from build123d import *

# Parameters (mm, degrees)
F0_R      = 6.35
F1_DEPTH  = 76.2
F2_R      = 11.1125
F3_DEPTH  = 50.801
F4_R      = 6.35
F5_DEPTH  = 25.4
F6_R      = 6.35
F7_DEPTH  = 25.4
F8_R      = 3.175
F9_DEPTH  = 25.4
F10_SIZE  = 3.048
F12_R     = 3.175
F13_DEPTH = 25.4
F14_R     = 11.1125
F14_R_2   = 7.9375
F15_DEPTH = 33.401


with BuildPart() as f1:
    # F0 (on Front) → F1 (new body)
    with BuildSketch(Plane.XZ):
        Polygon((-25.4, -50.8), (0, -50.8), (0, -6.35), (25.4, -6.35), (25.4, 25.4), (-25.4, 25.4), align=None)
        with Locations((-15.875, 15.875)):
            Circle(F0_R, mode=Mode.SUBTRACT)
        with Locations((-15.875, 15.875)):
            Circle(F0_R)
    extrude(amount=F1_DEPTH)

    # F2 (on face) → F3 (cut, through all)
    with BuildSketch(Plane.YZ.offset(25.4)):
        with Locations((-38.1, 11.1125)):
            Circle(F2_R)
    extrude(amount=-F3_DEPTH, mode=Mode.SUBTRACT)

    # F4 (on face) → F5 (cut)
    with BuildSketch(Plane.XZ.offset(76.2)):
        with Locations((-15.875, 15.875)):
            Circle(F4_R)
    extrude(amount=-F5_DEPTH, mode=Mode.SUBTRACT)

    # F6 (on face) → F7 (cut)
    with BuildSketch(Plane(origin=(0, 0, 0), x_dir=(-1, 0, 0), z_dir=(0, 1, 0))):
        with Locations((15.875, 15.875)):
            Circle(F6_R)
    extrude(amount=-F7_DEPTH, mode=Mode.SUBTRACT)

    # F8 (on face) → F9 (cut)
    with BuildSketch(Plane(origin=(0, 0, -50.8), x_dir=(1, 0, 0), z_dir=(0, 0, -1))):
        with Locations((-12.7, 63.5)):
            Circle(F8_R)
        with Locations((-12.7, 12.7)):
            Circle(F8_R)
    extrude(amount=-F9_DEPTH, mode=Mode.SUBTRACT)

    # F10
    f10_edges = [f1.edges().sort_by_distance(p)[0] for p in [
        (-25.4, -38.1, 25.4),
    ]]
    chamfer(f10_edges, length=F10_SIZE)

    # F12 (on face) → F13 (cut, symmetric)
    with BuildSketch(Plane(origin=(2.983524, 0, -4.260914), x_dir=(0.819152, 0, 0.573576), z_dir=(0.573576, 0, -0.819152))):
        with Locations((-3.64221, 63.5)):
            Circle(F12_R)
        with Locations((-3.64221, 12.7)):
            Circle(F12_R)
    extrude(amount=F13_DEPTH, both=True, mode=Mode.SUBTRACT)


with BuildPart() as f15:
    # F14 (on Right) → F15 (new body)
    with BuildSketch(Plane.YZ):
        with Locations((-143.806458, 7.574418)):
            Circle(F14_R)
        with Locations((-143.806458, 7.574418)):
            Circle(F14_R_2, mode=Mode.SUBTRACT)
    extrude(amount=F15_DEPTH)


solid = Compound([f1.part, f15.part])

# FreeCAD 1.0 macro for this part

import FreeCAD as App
import Part
import Sketcher
from FreeCAD import Vector
Q = App.Units.Quantity


def edges_at(feature, points):
    """Names of the edges that pass closest to the given points."""
    edges = feature.Shape.Edges
    near = lambda p: min(range(len(edges)), key=lambda i: edges[i].distToShape(Part.Vertex(*p))[0])
    return sorted({f"Edge{near(p) + 1}" for p in points})

doc = App.newDocument("Part")
body = doc.addObject("PartDesign::Body", "Body")

# Sketch on XZ plane
sketch1 = body.newObject("Sketcher::SketchObject", "Sketch")
sketch1.AttachmentSupport = (doc.getObject("XZ_Plane"), [""])
sketch1.MapMode = "FlatFace"
sketch1.addGeometry(Part.LineSegment(Vector(-25, -51, 0), Vector(0, -51, 0)), False)
sketch1.addGeometry(Part.LineSegment(Vector(0, -51, 0), Vector(0, -6, 0)), False)
sketch1.addGeometry(Part.LineSegment(Vector(0, -6, 0), Vector(25, -6, 0)), False)
sketch1.addGeometry(Part.LineSegment(Vector(25, -6, 0), Vector(25, 25, 0)), False)
sketch1.addGeometry(Part.LineSegment(Vector(25, 25, 0), Vector(-25, 25, 0)), False)
sketch1.addGeometry(Part.LineSegment(Vector(-25, 25, 0), Vector(-25, -51, 0)), False)
sketch1.addConstraint(Sketcher.Constraint("Coincident", 0, 2, 1, 1))
sketch1.addConstraint(Sketcher.Constraint("Coincident", 1, 2, 2, 1))
sketch1.addConstraint(Sketcher.Constraint("Coincident", 2, 2, 3, 1))
sketch1.addConstraint(Sketcher.Constraint("Coincident", 3, 2, 4, 1))
sketch1.addConstraint(Sketcher.Constraint("Coincident", 4, 2, 5, 1))
sketch1.addConstraint(Sketcher.Constraint("Coincident", 5, 2, 0, 1))
sketch1.addConstraint(Sketcher.Constraint("Horizontal", 0))
sketch1.addConstraint(Sketcher.Constraint("Vertical", 1))
sketch1.addConstraint(Sketcher.Constraint("Horizontal", 2))
sketch1.addConstraint(Sketcher.Constraint("Vertical", 3))
sketch1.addConstraint(Sketcher.Constraint("Horizontal", 4))
sketch1.addConstraint(Sketcher.Constraint("Vertical", 5))
sketch1.addConstraint(Sketcher.Constraint("PointOnObject", 0, 2, -2))
sketch1.addConstraint(Sketcher.Constraint("Equal", 0, 2))
sketch1.addConstraint(Sketcher.Constraint("DistanceX", 0, 1, 0, 2, Q("1 in")))
sketch1.addConstraint(Sketcher.Constraint("DistanceY", 5, 2, 5, 1, Q("3 in")))
sketch1.addConstraint(Sketcher.Constraint("DistanceY", 0, 2, -1, 1, Q("2 in")))
sketch1.addConstraint(Sketcher.Constraint("DistanceY", 1, 1, 1, 2, Q("1.75 in")))
pad1 = body.newObject("PartDesign::Pad", "Pad")
pad1.Profile = sketch1
pad1.Length = Q("3 in")

# Sketch on YZ plane
sketch2 = body.newObject("Sketcher::SketchObject", "Sketch001")
sketch2.AttachmentSupport = (doc.getObject("YZ_Plane"), [""])
sketch2.MapMode = "FlatFace"
sketch2.AttachmentOffset = App.Placement(Vector(0, 0, 1 * 25.4), App.Rotation())
sketch2.addGeometry(Part.Circle(Vector(-38, 11, 0), Vector(0, 0, 1), 11), False)
sketch2.addConstraint(Sketcher.Constraint("Diameter", 0, Q("0.875 in")))
sketch2.addConstraint(Sketcher.Constraint("DistanceX", 0, 3, -1, 1, Q("1.5 in")))
sketch2.addConstraint(Sketcher.Constraint("DistanceY", -1, 1, 0, 3, Q("0.4375 in")))
pocket1 = body.newObject("PartDesign::Pocket", "Pocket")
pocket1.Profile = sketch2
pocket1.Type = "ThroughAll"

# Sketch on XZ plane
sketch3 = body.newObject("Sketcher::SketchObject", "Sketch002")
sketch3.AttachmentSupport = (doc.getObject("XZ_Plane"), [""])
sketch3.MapMode = "FlatFace"
sketch3.AttachmentOffset = App.Placement(Vector(0, 0, 3 * 25.4), App.Rotation())
sketch3.addGeometry(Part.Circle(Vector(-16, 16, 0), Vector(0, 0, 1), 6), False)
sketch3.addConstraint(Sketcher.Constraint("Diameter", 0, Q("0.5 in")))
sketch3.addConstraint(Sketcher.Constraint("DistanceX", 0, 3, -1, 1, Q("0.625 in")))
sketch3.addConstraint(Sketcher.Constraint("DistanceY", -1, 1, 0, 3, Q("0.625 in")))
pocket2 = body.newObject("PartDesign::Pocket", "Pocket001")
pocket2.Profile = sketch3
pocket2.Length = Q("1 in")

# Sketch on XZ plane
sketch4 = body.newObject("Sketcher::SketchObject", "Sketch003")
sketch4.AttachmentSupport = (doc.getObject("XZ_Plane"), [""])
sketch4.MapMode = "FlatFace"
sketch4.addGeometry(Part.Circle(Vector(-16, 16, 0), Vector(0, 0, 1), 6), False)
sketch4.addConstraint(Sketcher.Constraint("Diameter", 0, Q("0.5 in")))
sketch4.addConstraint(Sketcher.Constraint("DistanceX", 0, 3, -1, 1, Q("0.625 in")))
sketch4.addConstraint(Sketcher.Constraint("DistanceY", -1, 1, 0, 3, Q("0.625 in")))
pocket3 = body.newObject("PartDesign::Pocket", "Pocket002")
pocket3.Profile = sketch4
pocket3.Length = Q("1 in")
pocket3.Reversed = True

# Sketch on XY plane
sketch5 = body.newObject("Sketcher::SketchObject", "Sketch004")
sketch5.AttachmentSupport = (doc.getObject("XY_Plane"), [""])
sketch5.MapMode = "FlatFace"
sketch5.AttachmentOffset = App.Placement(Vector(0, 0, -2 * 25.4), App.Rotation())
sketch5.addGeometry(Part.Circle(Vector(-12.7, -63.5, 0), Vector(0, 0, 1), 3.2), False)
sketch5.addGeometry(Part.Circle(Vector(-12.7, -12.7, 0), Vector(0, 0, 1), 3.2), False)
sketch5.addConstraint(Sketcher.Constraint("Equal", 0, 1))
sketch5.addConstraint(Sketcher.Constraint("Vertical", 0, 3, 1, 3))
sketch5.addConstraint(Sketcher.Constraint("Diameter", 0, Q("0.25 in")))
sketch5.addConstraint(Sketcher.Constraint("DistanceY", 0, 3, 1, 3, Q("2 in")))
sketch5.addConstraint(Sketcher.Constraint("DistanceX", 0, 3, -1, 1, Q("0.5 in")))
sketch5.addConstraint(Sketcher.Constraint("DistanceY", 0, 3, -1, 1, Q("2.5 in")))
pocket4 = body.newObject("PartDesign::Pocket", "Pocket003")
pocket4.Profile = sketch5
pocket4.Length = Q("1 in")
pocket4.Reversed = True
doc.recompute()

chamfer = body.newObject("PartDesign::Chamfer", "Chamfer")
chamfer.Base = (pocket4, edges_at(pocket4, [(-25.4, -38.1, 25.4)]))
chamfer.Size = Q("0.12 in")

# Sketch on an angled plane
sketch6 = body.newObject("Sketcher::SketchObject", "Sketch005")
sketch6.Placement = App.Placement(Vector(2.983524, 0, -4.260914), App.Rotation(Vector(0.819152235, 0, 0.573576164), Vector(0, -1, 0), Vector(0.573576164, 0, -0.819152235), "ZXY"))
sketch6.addGeometry(Part.Circle(Vector(-3.6, 63.5, 0), Vector(0, 0, 1), 3.2), False)
sketch6.addGeometry(Part.Circle(Vector(-3.6, 12.7, 0), Vector(0, 0, 1), 3.2), False)
sketch6.addConstraint(Sketcher.Constraint("Equal", 0, 1))
sketch6.addConstraint(Sketcher.Constraint("Vertical", 0, 3, 1, 3))
sketch6.addConstraint(Sketcher.Constraint("Diameter", 0, Q("0.25 in")))
sketch6.addConstraint(Sketcher.Constraint("DistanceY", 1, 3, 0, 3, Q("2 in")))
sketch6.addConstraint(Sketcher.Constraint("DistanceY", -1, 1, 0, 3, Q("2.5 in")))
sketch6.addConstraint(Sketcher.Constraint("DistanceX", 0, 3, -1, 1, Q("3.64221 mm")))
pocket5 = body.newObject("PartDesign::Pocket", "Pocket004")
pocket5.Profile = sketch6
pocket5.Length = Q("2 in")
pocket5.Midplane = True
body2 = doc.addObject("PartDesign::Body", "Body001")

# Sketch on YZ plane
sketch7 = body2.newObject("Sketcher::SketchObject", "Sketch006")
sketch7.AttachmentSupport = (doc.getObject("YZ_Plane001"), [""])
sketch7.MapMode = "FlatFace"
sketch7.addGeometry(Part.Circle(Vector(-144, 8, 0), Vector(0, 0, 1), 11), False)
sketch7.addGeometry(Part.Circle(Vector(-144, 8, 0), Vector(0, 0, 1), 8), False)
sketch7.addConstraint(Sketcher.Constraint("Coincident", 1, 3, 0, 3))
sketch7.addConstraint(Sketcher.Constraint("Diameter", 0, Q("0.875 in")))
sketch7.addConstraint(Sketcher.Constraint("Diameter", 1, Q("0.625 in")))
sketch7.addConstraint(Sketcher.Constraint("DistanceX", 0, 3, -1, 1, Q("143.806458 mm")))
sketch7.addConstraint(Sketcher.Constraint("DistanceY", -1, 1, 0, 3, Q("7.574418 mm")))
pad2 = body2.newObject("PartDesign::Pad", "Pad001")
pad2.Profile = sketch7
pad2.Length = Q("1.315 in")

doc.recompute()
